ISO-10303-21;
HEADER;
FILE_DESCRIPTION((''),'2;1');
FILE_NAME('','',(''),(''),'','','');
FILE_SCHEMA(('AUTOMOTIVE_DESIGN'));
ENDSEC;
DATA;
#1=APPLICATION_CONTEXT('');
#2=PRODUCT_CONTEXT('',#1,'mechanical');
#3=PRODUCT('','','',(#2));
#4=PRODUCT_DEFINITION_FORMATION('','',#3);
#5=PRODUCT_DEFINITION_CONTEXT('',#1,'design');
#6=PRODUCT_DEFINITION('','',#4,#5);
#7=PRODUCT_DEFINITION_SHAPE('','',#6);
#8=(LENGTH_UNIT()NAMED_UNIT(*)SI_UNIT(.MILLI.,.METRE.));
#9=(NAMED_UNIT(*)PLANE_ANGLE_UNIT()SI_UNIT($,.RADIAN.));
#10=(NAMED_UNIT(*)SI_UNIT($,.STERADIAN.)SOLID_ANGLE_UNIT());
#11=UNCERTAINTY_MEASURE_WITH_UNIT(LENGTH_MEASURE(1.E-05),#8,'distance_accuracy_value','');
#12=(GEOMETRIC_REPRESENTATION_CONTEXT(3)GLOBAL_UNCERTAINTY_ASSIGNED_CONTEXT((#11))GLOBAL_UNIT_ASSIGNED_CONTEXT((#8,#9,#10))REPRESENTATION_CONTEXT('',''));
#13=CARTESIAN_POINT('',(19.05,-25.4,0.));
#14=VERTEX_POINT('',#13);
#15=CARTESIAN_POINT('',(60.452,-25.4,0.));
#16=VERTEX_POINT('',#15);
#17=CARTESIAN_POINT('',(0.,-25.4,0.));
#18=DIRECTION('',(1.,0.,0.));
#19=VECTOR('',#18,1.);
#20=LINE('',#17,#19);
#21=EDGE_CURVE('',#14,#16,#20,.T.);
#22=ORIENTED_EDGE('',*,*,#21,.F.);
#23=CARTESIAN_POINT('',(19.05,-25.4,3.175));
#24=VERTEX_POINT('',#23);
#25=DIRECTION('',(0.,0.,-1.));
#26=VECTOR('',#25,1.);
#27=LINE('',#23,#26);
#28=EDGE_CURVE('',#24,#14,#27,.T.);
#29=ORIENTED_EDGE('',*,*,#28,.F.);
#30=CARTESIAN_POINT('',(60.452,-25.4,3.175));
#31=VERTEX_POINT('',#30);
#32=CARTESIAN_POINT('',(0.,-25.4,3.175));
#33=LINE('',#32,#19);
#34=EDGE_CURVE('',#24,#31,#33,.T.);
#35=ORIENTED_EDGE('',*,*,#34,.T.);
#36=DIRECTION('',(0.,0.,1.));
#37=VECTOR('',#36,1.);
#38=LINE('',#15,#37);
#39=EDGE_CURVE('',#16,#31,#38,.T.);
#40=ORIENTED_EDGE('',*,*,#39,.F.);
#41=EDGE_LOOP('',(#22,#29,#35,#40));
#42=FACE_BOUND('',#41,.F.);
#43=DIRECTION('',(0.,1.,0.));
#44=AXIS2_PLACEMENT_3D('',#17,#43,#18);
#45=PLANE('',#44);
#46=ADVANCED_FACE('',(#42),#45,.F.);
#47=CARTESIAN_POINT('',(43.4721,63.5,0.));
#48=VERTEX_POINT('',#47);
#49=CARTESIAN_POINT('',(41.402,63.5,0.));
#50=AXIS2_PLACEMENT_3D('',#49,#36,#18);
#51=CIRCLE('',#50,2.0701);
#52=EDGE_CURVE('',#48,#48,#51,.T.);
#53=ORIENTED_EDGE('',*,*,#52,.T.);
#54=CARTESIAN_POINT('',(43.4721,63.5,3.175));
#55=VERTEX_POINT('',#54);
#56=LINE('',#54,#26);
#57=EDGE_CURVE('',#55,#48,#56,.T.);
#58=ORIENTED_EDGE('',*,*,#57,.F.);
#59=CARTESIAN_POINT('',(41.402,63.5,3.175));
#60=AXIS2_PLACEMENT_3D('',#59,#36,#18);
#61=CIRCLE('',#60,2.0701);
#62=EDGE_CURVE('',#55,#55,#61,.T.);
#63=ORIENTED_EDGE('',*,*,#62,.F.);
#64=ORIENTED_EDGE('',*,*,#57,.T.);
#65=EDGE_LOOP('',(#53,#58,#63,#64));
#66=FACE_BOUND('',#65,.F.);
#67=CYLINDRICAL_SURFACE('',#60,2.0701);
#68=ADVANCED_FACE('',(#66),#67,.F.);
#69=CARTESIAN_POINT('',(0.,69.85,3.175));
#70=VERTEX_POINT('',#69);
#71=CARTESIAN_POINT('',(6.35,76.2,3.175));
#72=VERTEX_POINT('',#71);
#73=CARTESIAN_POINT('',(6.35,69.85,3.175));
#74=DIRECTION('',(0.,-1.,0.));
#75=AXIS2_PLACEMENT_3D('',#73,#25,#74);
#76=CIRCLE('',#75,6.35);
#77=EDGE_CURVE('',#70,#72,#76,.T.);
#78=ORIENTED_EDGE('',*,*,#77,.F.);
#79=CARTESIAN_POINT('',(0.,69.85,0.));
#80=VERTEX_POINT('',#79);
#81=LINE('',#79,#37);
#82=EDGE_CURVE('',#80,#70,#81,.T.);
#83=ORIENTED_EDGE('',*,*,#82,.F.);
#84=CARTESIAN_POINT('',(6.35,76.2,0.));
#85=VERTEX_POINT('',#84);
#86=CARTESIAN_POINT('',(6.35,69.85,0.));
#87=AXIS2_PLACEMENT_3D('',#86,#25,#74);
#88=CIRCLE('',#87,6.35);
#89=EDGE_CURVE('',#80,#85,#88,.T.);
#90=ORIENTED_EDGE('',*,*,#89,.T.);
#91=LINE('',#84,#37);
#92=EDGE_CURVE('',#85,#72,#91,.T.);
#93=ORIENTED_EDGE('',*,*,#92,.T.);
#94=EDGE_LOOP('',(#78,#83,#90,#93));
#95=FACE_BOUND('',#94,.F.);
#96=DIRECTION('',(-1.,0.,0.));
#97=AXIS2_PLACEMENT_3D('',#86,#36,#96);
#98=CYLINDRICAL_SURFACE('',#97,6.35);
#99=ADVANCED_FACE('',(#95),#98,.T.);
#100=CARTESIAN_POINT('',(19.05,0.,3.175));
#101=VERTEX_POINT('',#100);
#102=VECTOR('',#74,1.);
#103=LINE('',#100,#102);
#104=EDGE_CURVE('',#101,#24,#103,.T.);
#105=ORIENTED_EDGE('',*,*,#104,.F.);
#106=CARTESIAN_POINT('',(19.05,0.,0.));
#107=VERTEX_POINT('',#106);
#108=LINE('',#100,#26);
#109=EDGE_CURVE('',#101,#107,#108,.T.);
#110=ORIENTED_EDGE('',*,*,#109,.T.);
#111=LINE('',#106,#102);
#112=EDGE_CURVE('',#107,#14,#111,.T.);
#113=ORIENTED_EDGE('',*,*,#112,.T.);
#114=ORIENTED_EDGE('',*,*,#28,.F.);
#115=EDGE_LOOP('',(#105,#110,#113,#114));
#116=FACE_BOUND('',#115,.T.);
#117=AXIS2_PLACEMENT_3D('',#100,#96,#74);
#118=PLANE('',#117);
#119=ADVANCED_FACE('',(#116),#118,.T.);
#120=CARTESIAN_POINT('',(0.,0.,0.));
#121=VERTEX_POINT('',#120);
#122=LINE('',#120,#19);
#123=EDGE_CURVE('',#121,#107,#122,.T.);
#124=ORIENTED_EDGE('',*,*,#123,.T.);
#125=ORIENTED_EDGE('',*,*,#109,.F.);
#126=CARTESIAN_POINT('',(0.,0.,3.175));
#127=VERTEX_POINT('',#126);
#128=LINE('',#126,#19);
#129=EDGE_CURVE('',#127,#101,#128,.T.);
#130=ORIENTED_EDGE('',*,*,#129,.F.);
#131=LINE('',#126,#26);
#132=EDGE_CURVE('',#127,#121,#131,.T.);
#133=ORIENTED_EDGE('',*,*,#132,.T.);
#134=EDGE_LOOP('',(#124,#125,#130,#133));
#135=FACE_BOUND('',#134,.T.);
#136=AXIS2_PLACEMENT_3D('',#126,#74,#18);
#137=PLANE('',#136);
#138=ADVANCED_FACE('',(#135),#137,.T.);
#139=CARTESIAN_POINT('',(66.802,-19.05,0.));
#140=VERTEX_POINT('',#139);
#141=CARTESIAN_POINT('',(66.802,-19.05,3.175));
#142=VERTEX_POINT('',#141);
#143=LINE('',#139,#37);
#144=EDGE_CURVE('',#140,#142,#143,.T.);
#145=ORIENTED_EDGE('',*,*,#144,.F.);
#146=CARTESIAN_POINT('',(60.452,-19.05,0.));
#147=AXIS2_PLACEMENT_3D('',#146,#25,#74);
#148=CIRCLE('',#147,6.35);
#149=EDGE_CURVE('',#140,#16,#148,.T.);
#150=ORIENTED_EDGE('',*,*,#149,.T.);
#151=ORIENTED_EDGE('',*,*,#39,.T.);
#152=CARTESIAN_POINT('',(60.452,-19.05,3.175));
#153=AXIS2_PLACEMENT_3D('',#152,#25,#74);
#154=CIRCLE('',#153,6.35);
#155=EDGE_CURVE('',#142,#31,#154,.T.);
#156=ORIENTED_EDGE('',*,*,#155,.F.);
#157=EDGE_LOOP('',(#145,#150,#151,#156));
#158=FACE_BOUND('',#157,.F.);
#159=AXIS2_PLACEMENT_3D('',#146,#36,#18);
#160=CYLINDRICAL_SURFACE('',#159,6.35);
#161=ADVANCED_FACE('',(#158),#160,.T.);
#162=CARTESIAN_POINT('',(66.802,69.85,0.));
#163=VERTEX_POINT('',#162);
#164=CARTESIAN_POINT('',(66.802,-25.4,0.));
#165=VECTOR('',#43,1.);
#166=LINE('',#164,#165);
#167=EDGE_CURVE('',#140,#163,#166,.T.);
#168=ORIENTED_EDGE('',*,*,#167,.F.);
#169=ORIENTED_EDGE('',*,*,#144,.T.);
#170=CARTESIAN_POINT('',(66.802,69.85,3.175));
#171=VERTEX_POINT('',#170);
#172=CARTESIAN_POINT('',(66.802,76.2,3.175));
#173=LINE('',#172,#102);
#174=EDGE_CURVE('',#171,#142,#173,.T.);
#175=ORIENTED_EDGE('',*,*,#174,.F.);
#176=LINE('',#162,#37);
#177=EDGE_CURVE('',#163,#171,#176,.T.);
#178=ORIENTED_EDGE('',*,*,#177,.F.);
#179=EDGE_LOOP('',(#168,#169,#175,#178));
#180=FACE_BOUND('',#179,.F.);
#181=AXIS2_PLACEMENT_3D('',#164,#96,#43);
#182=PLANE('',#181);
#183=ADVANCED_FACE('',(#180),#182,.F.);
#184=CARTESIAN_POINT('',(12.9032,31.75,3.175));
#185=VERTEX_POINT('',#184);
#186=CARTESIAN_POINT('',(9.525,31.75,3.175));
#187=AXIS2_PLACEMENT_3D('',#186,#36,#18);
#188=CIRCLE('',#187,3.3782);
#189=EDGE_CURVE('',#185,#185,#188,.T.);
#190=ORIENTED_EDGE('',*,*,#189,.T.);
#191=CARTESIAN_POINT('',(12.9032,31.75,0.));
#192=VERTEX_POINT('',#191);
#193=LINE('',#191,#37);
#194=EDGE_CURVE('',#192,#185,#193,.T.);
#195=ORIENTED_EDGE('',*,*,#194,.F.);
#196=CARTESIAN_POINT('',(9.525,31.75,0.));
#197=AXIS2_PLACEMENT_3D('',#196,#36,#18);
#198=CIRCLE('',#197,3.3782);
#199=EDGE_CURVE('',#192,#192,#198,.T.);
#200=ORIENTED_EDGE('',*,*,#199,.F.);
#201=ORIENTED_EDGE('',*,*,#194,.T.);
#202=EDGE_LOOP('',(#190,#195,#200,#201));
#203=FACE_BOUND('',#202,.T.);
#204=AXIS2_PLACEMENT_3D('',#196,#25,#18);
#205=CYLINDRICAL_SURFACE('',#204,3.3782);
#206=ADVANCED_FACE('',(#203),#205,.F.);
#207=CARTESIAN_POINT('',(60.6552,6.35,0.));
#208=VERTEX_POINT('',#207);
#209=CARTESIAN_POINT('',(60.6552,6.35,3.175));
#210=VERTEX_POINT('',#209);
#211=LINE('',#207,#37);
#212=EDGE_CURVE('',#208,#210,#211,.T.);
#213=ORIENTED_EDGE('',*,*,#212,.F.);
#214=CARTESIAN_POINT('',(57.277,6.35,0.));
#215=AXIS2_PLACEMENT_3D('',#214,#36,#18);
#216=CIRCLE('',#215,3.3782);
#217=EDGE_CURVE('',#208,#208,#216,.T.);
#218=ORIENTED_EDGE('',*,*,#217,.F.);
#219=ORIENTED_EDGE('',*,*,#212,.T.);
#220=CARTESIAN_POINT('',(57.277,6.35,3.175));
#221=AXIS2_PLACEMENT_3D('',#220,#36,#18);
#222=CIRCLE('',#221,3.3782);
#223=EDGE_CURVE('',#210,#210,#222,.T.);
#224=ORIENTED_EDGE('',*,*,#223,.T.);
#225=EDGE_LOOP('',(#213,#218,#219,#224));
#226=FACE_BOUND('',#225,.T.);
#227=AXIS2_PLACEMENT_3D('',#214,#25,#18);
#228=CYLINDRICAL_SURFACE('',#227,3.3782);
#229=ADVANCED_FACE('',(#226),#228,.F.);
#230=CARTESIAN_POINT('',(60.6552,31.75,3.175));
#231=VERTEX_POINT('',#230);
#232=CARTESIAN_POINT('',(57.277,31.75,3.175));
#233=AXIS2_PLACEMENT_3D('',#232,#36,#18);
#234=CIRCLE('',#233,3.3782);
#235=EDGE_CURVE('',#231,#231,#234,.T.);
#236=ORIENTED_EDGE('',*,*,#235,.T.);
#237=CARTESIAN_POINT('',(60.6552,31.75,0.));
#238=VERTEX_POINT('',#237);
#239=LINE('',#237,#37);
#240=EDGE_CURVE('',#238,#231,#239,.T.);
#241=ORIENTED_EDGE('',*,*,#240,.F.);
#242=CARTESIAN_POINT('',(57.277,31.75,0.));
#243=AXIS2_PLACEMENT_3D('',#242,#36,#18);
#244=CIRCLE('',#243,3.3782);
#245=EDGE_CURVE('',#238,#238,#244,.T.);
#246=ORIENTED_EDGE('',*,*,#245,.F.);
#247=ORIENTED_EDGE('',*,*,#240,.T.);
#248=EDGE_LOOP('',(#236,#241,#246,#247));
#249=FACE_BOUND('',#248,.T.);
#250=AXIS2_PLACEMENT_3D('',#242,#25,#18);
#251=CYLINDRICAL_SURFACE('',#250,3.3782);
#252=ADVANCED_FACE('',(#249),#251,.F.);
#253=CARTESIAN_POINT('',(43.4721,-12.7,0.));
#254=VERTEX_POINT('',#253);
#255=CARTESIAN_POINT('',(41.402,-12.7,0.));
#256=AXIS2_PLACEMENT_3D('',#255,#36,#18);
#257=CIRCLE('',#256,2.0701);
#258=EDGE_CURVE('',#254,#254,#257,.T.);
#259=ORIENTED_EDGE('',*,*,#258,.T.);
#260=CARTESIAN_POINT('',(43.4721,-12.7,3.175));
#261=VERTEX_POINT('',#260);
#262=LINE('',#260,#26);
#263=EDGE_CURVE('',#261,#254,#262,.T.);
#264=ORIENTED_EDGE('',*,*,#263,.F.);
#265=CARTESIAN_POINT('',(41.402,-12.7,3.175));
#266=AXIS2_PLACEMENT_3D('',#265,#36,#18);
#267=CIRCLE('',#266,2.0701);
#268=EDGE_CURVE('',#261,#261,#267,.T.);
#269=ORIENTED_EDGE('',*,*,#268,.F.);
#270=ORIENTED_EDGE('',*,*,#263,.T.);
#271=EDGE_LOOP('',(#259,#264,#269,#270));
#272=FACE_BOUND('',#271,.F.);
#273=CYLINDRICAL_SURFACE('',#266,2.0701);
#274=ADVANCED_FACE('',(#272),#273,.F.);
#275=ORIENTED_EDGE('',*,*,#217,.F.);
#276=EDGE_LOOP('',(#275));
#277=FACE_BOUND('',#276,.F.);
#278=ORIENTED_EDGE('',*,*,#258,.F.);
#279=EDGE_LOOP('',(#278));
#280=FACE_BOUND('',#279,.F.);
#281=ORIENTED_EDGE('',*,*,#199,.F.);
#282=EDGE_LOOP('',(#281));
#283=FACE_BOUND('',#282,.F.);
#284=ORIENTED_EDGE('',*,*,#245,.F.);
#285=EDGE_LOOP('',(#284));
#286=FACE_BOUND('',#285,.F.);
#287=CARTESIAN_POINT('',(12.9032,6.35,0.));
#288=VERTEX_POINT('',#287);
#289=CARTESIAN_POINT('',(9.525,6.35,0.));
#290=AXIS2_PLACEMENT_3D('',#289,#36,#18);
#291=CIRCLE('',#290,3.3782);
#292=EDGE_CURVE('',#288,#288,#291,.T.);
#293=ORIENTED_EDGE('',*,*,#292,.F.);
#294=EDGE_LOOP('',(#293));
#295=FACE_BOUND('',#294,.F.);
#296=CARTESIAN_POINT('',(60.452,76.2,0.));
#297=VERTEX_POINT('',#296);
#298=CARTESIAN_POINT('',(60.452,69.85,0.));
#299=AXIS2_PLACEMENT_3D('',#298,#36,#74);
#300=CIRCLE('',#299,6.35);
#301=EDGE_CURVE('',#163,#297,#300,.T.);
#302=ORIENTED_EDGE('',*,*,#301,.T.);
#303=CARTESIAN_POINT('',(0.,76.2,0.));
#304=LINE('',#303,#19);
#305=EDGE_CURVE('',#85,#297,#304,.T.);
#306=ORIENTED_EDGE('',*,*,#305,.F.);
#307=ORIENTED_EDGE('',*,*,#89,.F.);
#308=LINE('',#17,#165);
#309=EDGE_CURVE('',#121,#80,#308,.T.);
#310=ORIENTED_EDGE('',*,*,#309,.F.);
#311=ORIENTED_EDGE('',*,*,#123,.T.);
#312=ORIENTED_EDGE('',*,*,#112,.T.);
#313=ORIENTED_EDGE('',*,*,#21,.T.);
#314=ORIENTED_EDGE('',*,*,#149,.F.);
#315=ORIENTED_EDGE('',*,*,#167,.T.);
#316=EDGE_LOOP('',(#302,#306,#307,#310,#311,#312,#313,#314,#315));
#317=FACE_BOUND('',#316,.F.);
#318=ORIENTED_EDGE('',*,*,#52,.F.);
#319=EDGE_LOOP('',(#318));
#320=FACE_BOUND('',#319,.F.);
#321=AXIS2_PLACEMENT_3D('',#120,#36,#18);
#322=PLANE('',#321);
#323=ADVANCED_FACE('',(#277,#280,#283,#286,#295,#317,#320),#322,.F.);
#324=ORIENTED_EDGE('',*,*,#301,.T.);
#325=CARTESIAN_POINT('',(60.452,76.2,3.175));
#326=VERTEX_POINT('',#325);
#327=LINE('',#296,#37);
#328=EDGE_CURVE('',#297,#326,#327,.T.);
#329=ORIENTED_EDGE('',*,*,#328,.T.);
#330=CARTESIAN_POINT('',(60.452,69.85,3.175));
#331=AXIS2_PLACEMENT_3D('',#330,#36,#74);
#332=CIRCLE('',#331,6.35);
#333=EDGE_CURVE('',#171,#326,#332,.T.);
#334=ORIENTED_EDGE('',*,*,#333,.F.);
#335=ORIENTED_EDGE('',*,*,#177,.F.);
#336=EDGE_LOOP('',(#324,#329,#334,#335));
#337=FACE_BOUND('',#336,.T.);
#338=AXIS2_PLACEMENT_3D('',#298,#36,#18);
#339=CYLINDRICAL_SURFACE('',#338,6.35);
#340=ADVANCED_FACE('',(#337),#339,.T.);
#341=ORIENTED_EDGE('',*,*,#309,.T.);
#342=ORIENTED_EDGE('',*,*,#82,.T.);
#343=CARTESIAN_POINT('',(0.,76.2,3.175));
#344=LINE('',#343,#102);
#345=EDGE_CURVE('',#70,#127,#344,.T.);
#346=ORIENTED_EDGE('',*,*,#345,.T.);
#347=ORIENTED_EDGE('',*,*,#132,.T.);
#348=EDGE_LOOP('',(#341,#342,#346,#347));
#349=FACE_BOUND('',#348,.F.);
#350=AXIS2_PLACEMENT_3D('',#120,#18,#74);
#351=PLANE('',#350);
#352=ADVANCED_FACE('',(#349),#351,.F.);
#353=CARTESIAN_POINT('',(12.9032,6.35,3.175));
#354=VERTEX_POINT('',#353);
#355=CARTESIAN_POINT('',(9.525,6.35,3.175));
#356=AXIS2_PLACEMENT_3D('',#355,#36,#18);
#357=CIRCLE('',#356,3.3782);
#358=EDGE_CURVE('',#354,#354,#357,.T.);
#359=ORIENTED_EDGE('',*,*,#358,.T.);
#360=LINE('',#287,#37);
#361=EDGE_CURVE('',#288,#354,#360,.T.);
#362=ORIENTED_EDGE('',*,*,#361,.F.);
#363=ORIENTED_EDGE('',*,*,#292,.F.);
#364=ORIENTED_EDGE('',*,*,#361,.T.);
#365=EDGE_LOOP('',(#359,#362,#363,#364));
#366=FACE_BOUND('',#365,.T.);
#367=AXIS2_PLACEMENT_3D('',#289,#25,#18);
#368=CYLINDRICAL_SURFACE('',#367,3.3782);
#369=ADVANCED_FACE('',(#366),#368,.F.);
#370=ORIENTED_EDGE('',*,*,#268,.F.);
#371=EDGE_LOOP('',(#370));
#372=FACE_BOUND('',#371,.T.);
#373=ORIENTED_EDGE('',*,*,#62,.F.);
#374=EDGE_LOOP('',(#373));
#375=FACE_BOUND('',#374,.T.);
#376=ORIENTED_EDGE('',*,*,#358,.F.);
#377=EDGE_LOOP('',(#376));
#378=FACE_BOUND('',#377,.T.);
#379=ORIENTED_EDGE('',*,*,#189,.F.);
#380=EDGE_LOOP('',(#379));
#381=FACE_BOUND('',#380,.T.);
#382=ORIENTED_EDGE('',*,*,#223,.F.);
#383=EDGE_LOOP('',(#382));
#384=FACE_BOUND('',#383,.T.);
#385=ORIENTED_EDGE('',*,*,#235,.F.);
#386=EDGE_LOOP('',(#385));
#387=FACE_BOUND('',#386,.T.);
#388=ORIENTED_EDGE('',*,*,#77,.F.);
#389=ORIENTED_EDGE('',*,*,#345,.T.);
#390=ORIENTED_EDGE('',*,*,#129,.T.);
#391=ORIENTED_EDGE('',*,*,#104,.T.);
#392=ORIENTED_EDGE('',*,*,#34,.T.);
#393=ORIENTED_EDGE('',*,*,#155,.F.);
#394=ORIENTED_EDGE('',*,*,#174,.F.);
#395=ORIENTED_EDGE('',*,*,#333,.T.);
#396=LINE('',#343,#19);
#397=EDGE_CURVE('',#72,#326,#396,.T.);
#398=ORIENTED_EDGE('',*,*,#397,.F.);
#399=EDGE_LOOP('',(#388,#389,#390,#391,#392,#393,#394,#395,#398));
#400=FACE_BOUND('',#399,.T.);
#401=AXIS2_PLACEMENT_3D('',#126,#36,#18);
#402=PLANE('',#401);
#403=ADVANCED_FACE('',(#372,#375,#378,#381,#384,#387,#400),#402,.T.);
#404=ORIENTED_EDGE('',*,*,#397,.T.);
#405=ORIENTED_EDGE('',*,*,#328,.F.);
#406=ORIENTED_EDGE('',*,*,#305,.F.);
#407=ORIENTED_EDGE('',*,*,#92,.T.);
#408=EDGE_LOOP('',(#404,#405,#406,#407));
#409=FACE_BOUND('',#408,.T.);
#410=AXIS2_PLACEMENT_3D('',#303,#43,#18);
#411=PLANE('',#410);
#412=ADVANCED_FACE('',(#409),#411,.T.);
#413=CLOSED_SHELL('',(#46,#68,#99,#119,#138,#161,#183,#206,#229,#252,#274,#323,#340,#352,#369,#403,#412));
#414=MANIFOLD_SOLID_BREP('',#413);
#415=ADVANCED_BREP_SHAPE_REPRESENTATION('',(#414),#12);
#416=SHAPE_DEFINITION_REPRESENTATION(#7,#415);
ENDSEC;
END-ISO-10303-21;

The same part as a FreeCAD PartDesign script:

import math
import FreeCAD as App
import Part
import Sketcher
Q = App.Units.Quantity


def edges_at(feature, points):
    """Names of the edges that pass closest to the given points."""
    edges = feature.Shape.Edges
    near = lambda p: min(range(len(edges)), key=lambda i: edges[i].distToShape(Part.Vertex(*p))[0])
    return sorted({f"Edge{near(p) + 1}" for p in points})


def add_polygon(sketch, points):
    """Adds a closed chain of lines whose ends are joined by coincident constraints."""
    first, n = sketch.GeometryCount, len(points)
    for a, b in zip(points, points[1:] + points[:1]):
        sketch.addGeometry(Part.LineSegment(App.Vector(*a, 0), App.Vector(*b, 0)), False)
    for i in range(n):
        sketch.addConstraint(Sketcher.Constraint("Coincident", first + i, 2, first + (i + 1) % n, 1))

doc = App.newDocument("Part")
body = doc.addObject("PartDesign::Body", "Body")

sketch1 = body.newObject("Sketcher::SketchObject", "Sketch")
sketch1.AttachmentSupport = (doc.getObject("XY_Plane"), [""])
sketch1.MapMode = "FlatFace"
add_polygon(sketch1, [(66.8, -25.4), (66.8, 76.2), (0, 76.2), (0, -25.4)])
sketch1.addGeometry(Part.Circle(App.Vector(9.5, 6.3, 0), App.Vector(0, 0, 1), 3.4), False)
sketch1.addGeometry(Part.Circle(App.Vector(57.3, 6.3, 0), App.Vector(0, 0, 1), 3.4), False)
sketch1.addGeometry(Part.Circle(App.Vector(9.5, 31.8, 0), App.Vector(0, 0, 1), 3.4), False)
sketch1.addGeometry(Part.Circle(App.Vector(57.3, 31.8, 0), App.Vector(0, 0, 1), 3.4), False)
sketch1.addConstraint(Sketcher.Constraint("Vertical", 0))
sketch1.addConstraint(Sketcher.Constraint("Horizontal", 1))
sketch1.addConstraint(Sketcher.Constraint("Vertical", 2))
sketch1.addConstraint(Sketcher.Constraint("Horizontal", 3))
sketch1.addConstraint(Sketcher.Constraint("Equal", 4, 5))
sketch1.addConstraint(Sketcher.Constraint("Equal", 5, 6))
sketch1.addConstraint(Sketcher.Constraint("Equal", 6, 7))
sketch1.addConstraint(Sketcher.Constraint("PointOnObject", 1, 2, -2))
sketch1.addConstraint(Sketcher.Constraint("Horizontal", 4, 3, 5, 3))
sketch1.addConstraint(Sketcher.Constraint("Horizontal", 6, 3, 7, 3))
sketch1.addConstraint(Sketcher.Constraint("Vertical", 4, 3, 6, 3))
sketch1.addConstraint(Sketcher.Constraint("Vertical", 5, 3, 7, 3))
sketch1.addConstraint(Sketcher.Constraint("DistanceY", 0, 1, 0, 2, Q("4 in")))
sketch1.addConstraint(Sketcher.Constraint("Diameter", 4, Q("0.266 in")))
sketch1.addConstraint(Sketcher.Constraint("DistanceY", 2, 2, -1, 1, Q("1 in")))
sketch1.addConstraint(Sketcher.Constraint("DistanceY", 4, 3, 6, 3, Q("1 in")))
sketch1.addConstraint(Sketcher.Constraint("DistanceX", 1, 2, 1, 1, Q("2.63 in")))
sketch1.addConstraint(Sketcher.Constraint("DistanceY", -1, 1, 4, 3, Q("0.25 in")))
sketch1.addConstraint(Sketcher.Constraint("DistanceX", 4, 3, 5, 3, Q("1.88 in")))
sketch1.addConstraint(Sketcher.Constraint("DistanceX", -1, 1, 4, 3, Q("0.375 in")))
pad1 = body.newObject("PartDesign::Pad", "Pad")
pad1.Profile = sketch1
pad1.Length = Q("0.125 in")

sketch2 = body.newObject("Sketcher::SketchObject", "Sketch001")
sketch2.AttachmentSupport = (doc.getObject("XY_Plane"), [""])
sketch2.MapMode = "FlatFace"
sketch2.AttachmentOffset = App.Placement(App.Vector(0, 0, 0.125 * 25.4), App.Rotation())
sketch2.addGeometry(Part.Circle(App.Vector(41.4, -12.7, 0), App.Vector(0, 0, 1), 2.1), False)
sketch2.addGeometry(Part.Circle(App.Vector(41.4, 63.5, 0), App.Vector(0, 0, 1), 2.1), False)
sketch2.addConstraint(Sketcher.Constraint("Equal", 0, 1))
sketch2.addConstraint(Sketcher.Constraint("Vertical", 0, 3, 1, 3))
sketch2.addConstraint(Sketcher.Constraint("Diameter", 0, Q("0.163 in")))
sketch2.addConstraint(Sketcher.Constraint("DistanceY", 0, 3, 1, 3, Q("3 in")))
sketch2.addConstraint(Sketcher.Constraint("DistanceY", 0, 3, -1, 1, Q("0.5 in")))
sketch2.addConstraint(Sketcher.Constraint("DistanceX", -1, 1, 0, 3, Q("1.63 in")))
pocket1 = body.newObject("PartDesign::Pocket", "Pocket")
pocket1.Profile = sketch2
pocket1.Length = Q("1 in")
doc.recompute()

fillet = body.newObject("PartDesign::Fillet", "Fillet")
fillet.Base = (pocket1, edges_at(pocket1, [
    (0, 76.2, 1.587),
    (66.802, 76.2, 1.587),
    (0, -25.4, 1.587),
    (66.802, -25.4, 1.587),
]))
fillet.Radius = Q("0.25 in")

sketch3 = body.newObject("Sketcher::SketchObject", "Sketch002")
sketch3.AttachmentSupport = (doc.getObject("XY_Plane"), [""])
sketch3.MapMode = "FlatFace"
sketch3.AttachmentOffset = App.Placement(App.Vector(0, 0, 0.125 * 25.4), App.Rotation())
sketch3.addGeometry(Part.LineSegment(App.Vector(19, 0, 0), App.Vector(0, 0, 0)), False)
sketch3.addGeometry(Part.LineSegment(App.Vector(0, 0, 0), App.Vector(0, -19, 0)), False)
sketch3.addGeometry(Part.ArcOfCircle(Part.Circle(App.Vector(6, -19, 0), App.Vector(0, 0, 1), 6), math.radians(180), math.radians(270)), False)
sketch3.addGeometry(Part.LineSegment(App.Vector(6, -25, 0), App.Vector(19, -25, 0)), False)
sketch3.addGeometry(Part.LineSegment(App.Vector(19, -25, 0), App.Vector(19, 0, 0)), False)
sketch3.addConstraint(Sketcher.Constraint("Coincident", 0, 2, 1, 1))
sketch3.addConstraint(Sketcher.Constraint("Tangent", 1, 2, 2, 1))
sketch3.addConstraint(Sketcher.Constraint("Tangent", 2, 2, 3, 1))
sketch3.addConstraint(Sketcher.Constraint("Coincident", 3, 2, 4, 1))
sketch3.addConstraint(Sketcher.Constraint("Coincident", 4, 2, 0, 1))
sketch3.addConstraint(Sketcher.Constraint("Horizontal", 0))
sketch3.addConstraint(Sketcher.Constraint("Vertical", 1))
sketch3.addConstraint(Sketcher.Constraint("Horizontal", 3))
sketch3.addConstraint(Sketcher.Constraint("Vertical", 4))
sketch3.addConstraint(Sketcher.Constraint("Coincident", 0, 2, -1, 1))
sketch3.addConstraint(Sketcher.Constraint("Equal", 0, 1))
sketch3.addConstraint(Sketcher.Constraint("DistanceY", 4, 1, 4, 2, Q("1 in")))
sketch3.addConstraint(Sketcher.Constraint("DistanceX", 0, 2, 0, 1, Q("0.75 in")))
pocket2 = body.newObject("PartDesign::Pocket", "Pocket001")
pocket2.Profile = sketch3
pocket2.Length = Q("1 in")

doc.recompute()
